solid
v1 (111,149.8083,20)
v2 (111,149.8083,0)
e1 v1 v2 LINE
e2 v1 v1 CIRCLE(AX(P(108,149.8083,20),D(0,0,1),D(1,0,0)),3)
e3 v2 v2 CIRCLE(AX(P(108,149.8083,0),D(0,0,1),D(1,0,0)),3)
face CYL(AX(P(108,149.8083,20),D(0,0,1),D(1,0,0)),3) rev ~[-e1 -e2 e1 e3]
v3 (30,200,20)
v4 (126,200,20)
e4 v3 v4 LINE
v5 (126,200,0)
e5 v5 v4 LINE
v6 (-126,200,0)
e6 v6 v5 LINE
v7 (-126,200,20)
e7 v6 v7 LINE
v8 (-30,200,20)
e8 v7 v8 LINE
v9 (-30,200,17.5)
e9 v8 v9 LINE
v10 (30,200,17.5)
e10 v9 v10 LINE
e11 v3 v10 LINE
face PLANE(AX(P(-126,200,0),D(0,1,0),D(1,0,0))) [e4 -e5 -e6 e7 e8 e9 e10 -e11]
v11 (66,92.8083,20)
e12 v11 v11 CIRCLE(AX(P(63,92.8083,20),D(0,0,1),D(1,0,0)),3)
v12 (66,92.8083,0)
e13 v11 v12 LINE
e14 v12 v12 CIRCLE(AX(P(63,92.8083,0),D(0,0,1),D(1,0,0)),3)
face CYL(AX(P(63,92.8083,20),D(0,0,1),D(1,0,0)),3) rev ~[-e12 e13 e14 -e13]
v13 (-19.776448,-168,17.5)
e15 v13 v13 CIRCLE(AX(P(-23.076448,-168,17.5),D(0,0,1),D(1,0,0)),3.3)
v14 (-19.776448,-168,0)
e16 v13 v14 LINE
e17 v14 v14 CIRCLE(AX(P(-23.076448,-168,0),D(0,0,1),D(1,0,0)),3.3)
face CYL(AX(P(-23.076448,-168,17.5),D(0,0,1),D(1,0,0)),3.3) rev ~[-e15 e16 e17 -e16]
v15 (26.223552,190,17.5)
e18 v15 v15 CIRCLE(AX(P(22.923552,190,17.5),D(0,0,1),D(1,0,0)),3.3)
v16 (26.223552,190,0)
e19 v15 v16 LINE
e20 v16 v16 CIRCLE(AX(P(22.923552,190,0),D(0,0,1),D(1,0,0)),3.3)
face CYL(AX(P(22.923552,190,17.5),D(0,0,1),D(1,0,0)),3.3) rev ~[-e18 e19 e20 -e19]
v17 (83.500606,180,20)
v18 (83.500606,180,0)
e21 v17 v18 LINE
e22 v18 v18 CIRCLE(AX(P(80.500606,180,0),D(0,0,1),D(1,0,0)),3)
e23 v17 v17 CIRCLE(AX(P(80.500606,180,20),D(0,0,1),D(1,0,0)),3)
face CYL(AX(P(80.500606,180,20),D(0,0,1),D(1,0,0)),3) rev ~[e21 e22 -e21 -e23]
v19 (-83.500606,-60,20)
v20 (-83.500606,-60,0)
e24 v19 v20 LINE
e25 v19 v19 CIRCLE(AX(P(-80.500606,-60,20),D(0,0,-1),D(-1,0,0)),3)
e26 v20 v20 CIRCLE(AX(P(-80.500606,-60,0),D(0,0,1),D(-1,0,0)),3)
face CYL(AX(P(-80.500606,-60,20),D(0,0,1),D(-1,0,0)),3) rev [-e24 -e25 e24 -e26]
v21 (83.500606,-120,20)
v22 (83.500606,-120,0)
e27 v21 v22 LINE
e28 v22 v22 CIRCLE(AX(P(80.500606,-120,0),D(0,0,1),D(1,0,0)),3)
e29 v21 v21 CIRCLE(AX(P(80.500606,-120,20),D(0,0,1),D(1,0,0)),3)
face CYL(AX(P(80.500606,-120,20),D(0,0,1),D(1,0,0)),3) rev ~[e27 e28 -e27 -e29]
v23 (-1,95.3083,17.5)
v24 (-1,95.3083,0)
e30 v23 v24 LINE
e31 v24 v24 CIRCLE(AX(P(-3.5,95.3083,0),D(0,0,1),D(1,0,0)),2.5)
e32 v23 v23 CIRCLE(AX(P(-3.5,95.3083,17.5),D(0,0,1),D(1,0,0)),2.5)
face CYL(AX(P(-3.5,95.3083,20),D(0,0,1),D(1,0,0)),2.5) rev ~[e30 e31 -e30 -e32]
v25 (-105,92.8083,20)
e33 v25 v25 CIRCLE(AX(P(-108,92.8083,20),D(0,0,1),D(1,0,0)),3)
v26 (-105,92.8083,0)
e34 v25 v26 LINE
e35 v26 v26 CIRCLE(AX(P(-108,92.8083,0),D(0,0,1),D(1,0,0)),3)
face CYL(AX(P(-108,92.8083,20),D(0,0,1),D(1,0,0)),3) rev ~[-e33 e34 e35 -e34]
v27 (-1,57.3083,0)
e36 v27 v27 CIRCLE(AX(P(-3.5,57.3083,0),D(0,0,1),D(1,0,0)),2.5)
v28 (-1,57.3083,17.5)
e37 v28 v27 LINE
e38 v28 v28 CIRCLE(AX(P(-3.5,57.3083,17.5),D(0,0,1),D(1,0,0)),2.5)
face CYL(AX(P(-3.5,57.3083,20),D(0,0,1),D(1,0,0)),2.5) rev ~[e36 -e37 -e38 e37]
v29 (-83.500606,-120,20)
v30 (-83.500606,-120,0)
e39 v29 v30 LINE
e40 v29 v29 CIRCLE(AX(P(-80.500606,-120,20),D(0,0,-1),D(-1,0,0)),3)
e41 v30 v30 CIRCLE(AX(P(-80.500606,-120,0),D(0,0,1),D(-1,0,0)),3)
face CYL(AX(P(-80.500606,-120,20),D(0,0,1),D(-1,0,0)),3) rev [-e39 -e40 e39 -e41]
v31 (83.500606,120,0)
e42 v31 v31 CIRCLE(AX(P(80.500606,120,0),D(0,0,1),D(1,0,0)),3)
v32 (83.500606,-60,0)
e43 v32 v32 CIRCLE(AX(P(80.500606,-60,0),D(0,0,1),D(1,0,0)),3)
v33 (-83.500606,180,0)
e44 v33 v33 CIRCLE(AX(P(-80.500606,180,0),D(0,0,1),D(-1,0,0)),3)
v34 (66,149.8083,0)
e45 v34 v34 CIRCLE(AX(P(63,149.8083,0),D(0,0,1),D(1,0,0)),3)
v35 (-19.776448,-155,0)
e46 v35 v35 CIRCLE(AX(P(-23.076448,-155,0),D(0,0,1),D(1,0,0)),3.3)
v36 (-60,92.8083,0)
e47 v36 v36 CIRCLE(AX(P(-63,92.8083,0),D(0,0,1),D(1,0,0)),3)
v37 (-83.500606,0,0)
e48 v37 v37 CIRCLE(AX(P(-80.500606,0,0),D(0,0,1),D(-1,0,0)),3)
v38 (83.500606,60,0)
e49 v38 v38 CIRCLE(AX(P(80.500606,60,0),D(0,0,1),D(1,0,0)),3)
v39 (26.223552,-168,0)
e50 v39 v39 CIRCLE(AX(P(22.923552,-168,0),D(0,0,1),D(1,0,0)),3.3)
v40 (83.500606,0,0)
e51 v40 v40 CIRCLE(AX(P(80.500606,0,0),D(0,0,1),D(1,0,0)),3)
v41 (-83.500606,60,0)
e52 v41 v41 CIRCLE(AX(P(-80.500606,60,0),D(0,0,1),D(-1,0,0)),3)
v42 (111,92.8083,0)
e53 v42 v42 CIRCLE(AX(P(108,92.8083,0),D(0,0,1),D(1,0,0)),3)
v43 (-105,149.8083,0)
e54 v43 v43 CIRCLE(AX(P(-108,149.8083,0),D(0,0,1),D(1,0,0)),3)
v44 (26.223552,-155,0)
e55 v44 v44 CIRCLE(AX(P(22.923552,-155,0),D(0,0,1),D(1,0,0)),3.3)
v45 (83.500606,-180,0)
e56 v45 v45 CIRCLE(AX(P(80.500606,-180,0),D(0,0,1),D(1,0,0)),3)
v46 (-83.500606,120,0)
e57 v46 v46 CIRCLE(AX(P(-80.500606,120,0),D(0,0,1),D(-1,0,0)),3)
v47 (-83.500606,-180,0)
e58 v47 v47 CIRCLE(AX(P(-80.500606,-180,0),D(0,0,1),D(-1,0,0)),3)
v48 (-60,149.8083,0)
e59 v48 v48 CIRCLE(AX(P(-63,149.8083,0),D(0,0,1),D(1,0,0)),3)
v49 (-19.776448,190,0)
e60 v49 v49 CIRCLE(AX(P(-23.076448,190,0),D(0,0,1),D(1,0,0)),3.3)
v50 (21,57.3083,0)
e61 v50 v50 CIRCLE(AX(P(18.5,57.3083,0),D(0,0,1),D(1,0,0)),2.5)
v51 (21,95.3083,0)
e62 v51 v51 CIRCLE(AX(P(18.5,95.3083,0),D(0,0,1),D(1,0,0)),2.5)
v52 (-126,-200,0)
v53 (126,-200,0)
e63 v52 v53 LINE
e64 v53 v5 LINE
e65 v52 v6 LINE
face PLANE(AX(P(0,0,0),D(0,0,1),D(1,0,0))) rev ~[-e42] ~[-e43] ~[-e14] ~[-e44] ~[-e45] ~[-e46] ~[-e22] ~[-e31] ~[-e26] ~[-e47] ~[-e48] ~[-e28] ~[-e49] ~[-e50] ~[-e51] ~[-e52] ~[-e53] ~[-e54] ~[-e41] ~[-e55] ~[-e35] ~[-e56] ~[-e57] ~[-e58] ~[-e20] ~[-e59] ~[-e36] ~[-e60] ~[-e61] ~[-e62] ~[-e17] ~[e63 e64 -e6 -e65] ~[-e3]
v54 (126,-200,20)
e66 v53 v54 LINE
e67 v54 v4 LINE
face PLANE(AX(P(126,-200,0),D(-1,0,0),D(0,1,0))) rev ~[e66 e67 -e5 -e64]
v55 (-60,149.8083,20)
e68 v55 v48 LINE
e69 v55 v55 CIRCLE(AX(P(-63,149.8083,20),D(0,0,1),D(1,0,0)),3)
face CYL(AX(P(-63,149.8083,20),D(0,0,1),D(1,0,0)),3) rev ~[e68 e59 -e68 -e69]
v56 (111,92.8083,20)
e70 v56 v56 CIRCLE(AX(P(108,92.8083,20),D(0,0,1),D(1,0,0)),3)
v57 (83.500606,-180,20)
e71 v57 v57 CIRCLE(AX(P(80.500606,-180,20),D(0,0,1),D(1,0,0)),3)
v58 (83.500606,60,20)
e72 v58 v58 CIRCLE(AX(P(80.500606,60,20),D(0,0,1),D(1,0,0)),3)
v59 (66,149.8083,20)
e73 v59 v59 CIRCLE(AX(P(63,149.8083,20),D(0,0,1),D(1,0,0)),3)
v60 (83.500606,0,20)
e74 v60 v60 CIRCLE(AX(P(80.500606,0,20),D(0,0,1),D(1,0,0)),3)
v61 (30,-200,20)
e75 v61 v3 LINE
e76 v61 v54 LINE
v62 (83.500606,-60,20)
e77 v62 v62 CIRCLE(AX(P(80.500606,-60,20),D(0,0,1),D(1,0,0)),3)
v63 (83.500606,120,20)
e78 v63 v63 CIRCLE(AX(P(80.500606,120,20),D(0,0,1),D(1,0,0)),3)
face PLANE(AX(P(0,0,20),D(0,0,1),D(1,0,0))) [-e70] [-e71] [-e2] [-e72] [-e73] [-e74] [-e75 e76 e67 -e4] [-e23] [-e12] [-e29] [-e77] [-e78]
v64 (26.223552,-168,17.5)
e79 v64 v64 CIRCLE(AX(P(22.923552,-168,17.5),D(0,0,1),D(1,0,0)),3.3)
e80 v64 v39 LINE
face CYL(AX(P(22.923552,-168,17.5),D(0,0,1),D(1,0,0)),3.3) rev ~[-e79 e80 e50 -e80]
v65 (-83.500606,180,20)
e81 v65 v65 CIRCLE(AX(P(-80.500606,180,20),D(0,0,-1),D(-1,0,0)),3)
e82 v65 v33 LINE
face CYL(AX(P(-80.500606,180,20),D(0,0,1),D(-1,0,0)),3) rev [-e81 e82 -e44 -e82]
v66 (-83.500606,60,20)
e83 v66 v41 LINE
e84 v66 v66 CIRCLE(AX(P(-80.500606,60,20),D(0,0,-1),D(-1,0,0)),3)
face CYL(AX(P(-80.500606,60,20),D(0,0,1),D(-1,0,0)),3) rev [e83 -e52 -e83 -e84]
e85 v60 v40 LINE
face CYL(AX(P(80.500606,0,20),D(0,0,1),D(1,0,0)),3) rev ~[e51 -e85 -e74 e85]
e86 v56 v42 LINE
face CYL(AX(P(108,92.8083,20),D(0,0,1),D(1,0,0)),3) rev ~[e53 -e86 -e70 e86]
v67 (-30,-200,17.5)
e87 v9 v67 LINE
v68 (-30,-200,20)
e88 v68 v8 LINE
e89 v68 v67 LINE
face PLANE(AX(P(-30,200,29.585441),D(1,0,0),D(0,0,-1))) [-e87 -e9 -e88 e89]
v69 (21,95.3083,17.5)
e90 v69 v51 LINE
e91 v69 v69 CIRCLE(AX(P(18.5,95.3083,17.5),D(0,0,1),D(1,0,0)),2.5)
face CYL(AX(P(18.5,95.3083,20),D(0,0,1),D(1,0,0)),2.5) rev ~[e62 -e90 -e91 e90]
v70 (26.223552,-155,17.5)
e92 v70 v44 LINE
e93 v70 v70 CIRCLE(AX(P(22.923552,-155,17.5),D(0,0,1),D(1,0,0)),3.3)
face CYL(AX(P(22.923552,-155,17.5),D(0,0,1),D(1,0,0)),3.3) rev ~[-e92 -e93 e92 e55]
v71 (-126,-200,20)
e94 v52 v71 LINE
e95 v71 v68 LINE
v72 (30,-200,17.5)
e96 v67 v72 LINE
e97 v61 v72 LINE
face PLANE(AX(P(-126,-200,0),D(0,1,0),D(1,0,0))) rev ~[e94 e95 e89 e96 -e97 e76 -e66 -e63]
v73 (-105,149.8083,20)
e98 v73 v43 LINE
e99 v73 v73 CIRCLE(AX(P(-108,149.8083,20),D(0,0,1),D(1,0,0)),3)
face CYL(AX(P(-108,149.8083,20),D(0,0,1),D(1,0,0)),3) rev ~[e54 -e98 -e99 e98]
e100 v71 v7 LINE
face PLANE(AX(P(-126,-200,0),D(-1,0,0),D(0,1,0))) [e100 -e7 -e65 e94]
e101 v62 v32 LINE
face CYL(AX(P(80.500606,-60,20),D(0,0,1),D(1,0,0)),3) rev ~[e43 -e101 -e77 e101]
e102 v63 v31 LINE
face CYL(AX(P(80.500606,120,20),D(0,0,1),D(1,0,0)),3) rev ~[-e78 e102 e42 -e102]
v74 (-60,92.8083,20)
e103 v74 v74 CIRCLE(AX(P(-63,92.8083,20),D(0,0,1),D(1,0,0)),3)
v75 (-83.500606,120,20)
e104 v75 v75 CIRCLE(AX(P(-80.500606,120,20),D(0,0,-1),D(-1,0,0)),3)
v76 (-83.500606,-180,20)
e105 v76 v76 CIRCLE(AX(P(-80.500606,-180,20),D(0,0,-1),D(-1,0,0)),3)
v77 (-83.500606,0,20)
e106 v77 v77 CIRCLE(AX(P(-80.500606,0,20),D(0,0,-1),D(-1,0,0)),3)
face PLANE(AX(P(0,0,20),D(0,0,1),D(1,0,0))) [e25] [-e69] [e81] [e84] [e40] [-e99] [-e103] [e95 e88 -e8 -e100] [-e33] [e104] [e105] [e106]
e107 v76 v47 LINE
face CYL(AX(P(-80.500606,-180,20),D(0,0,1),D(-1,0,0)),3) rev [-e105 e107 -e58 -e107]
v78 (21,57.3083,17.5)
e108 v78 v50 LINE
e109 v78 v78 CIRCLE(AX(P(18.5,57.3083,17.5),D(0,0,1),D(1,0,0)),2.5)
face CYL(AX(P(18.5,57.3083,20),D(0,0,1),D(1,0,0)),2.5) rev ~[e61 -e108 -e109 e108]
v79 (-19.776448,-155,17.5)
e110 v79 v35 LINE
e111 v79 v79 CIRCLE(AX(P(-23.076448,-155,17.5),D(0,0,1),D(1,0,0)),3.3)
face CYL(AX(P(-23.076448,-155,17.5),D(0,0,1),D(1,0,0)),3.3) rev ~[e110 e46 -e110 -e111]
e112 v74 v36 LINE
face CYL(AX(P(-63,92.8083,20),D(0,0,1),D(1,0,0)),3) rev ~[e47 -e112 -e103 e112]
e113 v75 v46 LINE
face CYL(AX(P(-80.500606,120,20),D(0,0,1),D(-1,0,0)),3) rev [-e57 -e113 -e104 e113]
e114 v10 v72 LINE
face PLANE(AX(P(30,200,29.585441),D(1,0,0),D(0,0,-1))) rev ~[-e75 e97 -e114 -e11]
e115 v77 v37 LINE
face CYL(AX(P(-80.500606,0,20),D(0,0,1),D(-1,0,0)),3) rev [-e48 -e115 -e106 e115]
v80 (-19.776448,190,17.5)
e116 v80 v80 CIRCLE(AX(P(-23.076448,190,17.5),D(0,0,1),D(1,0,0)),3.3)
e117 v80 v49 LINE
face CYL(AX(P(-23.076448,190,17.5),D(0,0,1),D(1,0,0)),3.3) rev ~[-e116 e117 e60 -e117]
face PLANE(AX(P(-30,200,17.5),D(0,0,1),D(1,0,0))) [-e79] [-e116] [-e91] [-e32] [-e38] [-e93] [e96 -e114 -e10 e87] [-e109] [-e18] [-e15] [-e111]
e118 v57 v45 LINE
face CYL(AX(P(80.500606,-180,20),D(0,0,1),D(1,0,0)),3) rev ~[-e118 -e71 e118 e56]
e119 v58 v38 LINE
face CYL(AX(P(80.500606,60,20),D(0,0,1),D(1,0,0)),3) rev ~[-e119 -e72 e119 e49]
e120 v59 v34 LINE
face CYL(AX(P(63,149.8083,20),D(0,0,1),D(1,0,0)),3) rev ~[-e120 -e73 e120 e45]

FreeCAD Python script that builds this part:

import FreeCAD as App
import Part
import Sketcher

doc = App.newDocument("Part")
params = doc.addObject("Spreadsheet::Sheet", "Params")
for row, (alias, value) in enumerate([
    ("sketch1_width", "252 mm"),
    ("sketch1_height", "400 mm"),
    ("pad1_length", "20 mm"),
    ("sketch2_width", "60 mm"),
    ("sketch3_diameter", "6.6 mm"),
    ("sketch4_diameter", "6 mm"),
    ("sketch5_diameter", "6 mm"),
    ("sketch5_diameter2", "5 mm"),
], start=1):
    params.set(f"A{row}", alias)
    params.set(f"B{row}", "=" + value)
    params.setAlias(f"B{row}", alias)

body = doc.addObject("PartDesign::Body", "Body")

# Sketch on XY plane
sketch1 = doc.addObject("Sketcher::SketchObject", "Sketch")
body.addObject(sketch1)
sketch1.AttachmentSupport = (doc.XY_Plane, [""])
sketch1.MapMode = "FlatFace"
sketch1.addGeometry([
    Part.LineSegment(App.Vector(-126, 200, 0), App.Vector(-126, -200, 0)),
    Part.LineSegment(App.Vector(-126, -200, 0), App.Vector(126, -200, 0)),
    Part.LineSegment(App.Vector(126, -200, 0), App.Vector(126, 200, 0)),
    Part.LineSegment(App.Vector(126, 200, 0), App.Vector(-126, 200, 0)),
], False)
sketch1.addConstraint([
    Sketcher.Constraint("Coincident", 0, 2, 1, 1),
    Sketcher.Constraint("Coincident", 1, 2, 2, 1),
    Sketcher.Constraint("Coincident", 2, 2, 3, 1),
    Sketcher.Constraint("Coincident", 3, 2, 0, 1),
    Sketcher.Constraint("Vertical", 0),
    Sketcher.Constraint("Horizontal", 1),
    Sketcher.Constraint("Vertical", 2),
    Sketcher.Constraint("Horizontal", 3),
    Sketcher.Constraint("Symmetric", 0, 2, 2, 2, -1, 1),
    Sketcher.Constraint("DistanceX", 1, 1, 1, 2, 252.0),
    Sketcher.Constraint("DistanceY", 0, 2, 0, 1, 400.0),
])
sketch1.setExpression("Constraints[9]", "Params.sketch1_width")
sketch1.setExpression("Constraints[10]", "Params.sketch1_height")
pad1 = doc.addObject("PartDesign::Pad", "Pad")
body.addObject(pad1)
pad1.Profile = sketch1
pad1.setExpression("Length", "Params.pad1_length")

# Sketch on XZ plane
sketch2 = doc.addObject("Sketcher::SketchObject", "Sketch001")
body.addObject(sketch2)
sketch2.AttachmentSupport = (doc.XZ_Plane, [""])
sketch2.MapMode = "FlatFace"
sketch2.AttachmentOffset = App.Placement(App.Vector(0, 0, -200), App.Rotation())
sketch2.addGeometry([
    Part.LineSegment(App.Vector(-30, 18, 0), App.Vector(-30, 30, 0)),
    Part.LineSegment(App.Vector(-30, 30, 0), App.Vector(30, 30, 0)),
    Part.LineSegment(App.Vector(30, 30, 0), App.Vector(30, 18, 0)),
    Part.LineSegment(App.Vector(30, 18, 0), App.Vector(-30, 18, 0)),
], False)
sketch2.addConstraint([
    Sketcher.Constraint("Coincident", 0, 2, 1, 1),
    Sketcher.Constraint("Coincident", 1, 2, 2, 1),
    Sketcher.Constraint("Coincident", 2, 2, 3, 1),
    Sketcher.Constraint("Coincident", 3, 2, 0, 1),
    Sketcher.Constraint("Vertical", 0),
    Sketcher.Constraint("Horizontal", 1),
    Sketcher.Constraint("Vertical", 2),
    Sketcher.Constraint("Horizontal", 3),
    Sketcher.Constraint("DistanceX", 1, 1, 1, 2, 60.0),
    Sketcher.Constraint("DistanceX", 0, 2, -1, 1, 30.0),
    Sketcher.Constraint("DistanceY", -1, 1, 2, 2, 17.5),
    Sketcher.Constraint("DistanceY", 0, 1, 0, 2, 12.085441),
])
sketch2.setExpression("Constraints[8]", "Params.sketch2_width")
pocket1 = doc.addObject("PartDesign::Pocket", "Pocket")
body.addObject(pocket1)
pocket1.Profile = sketch2
pocket1.Type = "ThroughAll"
pocket1.Reversed = True

# Sketch on XY plane
sketch3 = doc.addObject("Sketcher::SketchObject", "Sketch002")
body.addObject(sketch3)
sketch3.AttachmentSupport = (doc.XY_Plane, [""])
sketch3.MapMode = "FlatFace"
sketch3.AttachmentOffset = App.Placement(App.Vector(0, 0, 17.5), App.Rotation())
sketch3.addGeometry([
    Part.Circle(App.Vector(22.9, 190, 0), App.Vector(0, 0, 1), 3.3),  # 0
    Part.Circle(App.Vector(-23.1, 190, 0), App.Vector(0, 0, 1), 3.3),  # 1
    Part.Circle(App.Vector(22.9, -155, 0), App.Vector(0, 0, 1), 3.3),  # 2
    Part.Circle(App.Vector(-23.1, -155, 0), App.Vector(0, 0, 1), 3.3),  # 3
    Part.Circle(App.Vector(22.9, -168, 0), App.Vector(0, 0, 1), 3.3),  # 4
    Part.Circle(App.Vector(-23.1, -168, 0), App.Vector(0, 0, 1), 3.3),  # 5
], False)
sketch3.addConstraint([
    Sketcher.Constraint("Equal", 0, 1),
    Sketcher.Constraint("Equal", 1, 2),
    Sketcher.Constraint("Equal", 2, 3),
    Sketcher.Constraint("Equal", 3, 4),
    Sketcher.Constraint("Equal", 4, 5),
    Sketcher.Constraint("Horizontal", 0, 3, 1, 3),
    Sketcher.Constraint("Horizontal", 2, 3, 3, 3),
    Sketcher.Constraint("Horizontal", 4, 3, 5, 3),
    Sketcher.Constraint("Vertical", 0, 3, 2, 3),
    Sketcher.Constraint("Vertical", 1, 3, 3, 3),
    Sketcher.Constraint("Vertical", 2, 3, 4, 3),
    Sketcher.Constraint("Vertical", 3, 3, 5, 3),
    Sketcher.Constraint("Diameter", 0, 6.6),
    Sketcher.Constraint("DistanceY", -1, 1, 0, 3, 190.0),
    Sketcher.Constraint("DistanceY", 2, 3, -1, 1, 155.0),
    Sketcher.Constraint("DistanceY", 4, 3, -1, 1, 168.0),
    Sketcher.Constraint("DistanceX", 1, 3, 0, 3, 46.0),
    Sketcher.Constraint("DistanceX", -1, 1, 0, 3, 22.923552),
])
sketch3.setExpression("Constraints[12]", "Params.sketch3_diameter")
pocket2 = doc.addObject("PartDesign::Pocket", "Pocket001")
body.addObject(pocket2)
pocket2.Profile = sketch3
pocket2.Type = "ThroughAll"

# Sketch on XY plane
sketch4 = doc.addObject("Sketcher::SketchObject", "Sketch003")
body.addObject(sketch4)
sketch4.AttachmentSupport = (doc.XY_Plane, [""])
sketch4.MapMode = "FlatFace"
sketch4.AttachmentOffset = App.Placement(App.Vector(0, 0, 20), App.Rotation())
sketch4.addGeometry([
    Part.Circle(App.Vector(80.5, -120, 0), App.Vector(0, 0, 1), 3),  # 0
    Part.Circle(App.Vector(80.5, -180, 0), App.Vector(0, 0, 1), 3),  # 1
    Part.Circle(App.Vector(80.5, 180, 0), App.Vector(0, 0, 1), 3),  # 2
    Part.Circle(App.Vector(80.5, 120, 0), App.Vector(0, 0, 1), 3),  # 3
    Part.Circle(App.Vector(80.5, 60, 0), App.Vector(0, 0, 1), 3),  # 4
    Part.Circle(App.Vector(80.5, 0, 0), App.Vector(0, 0, 1), 3),  # 5
    Part.Circle(App.Vector(80.5, -60, 0), App.Vector(0, 0, 1), 3),  # 6
], False)
sketch4.addConstraint([
    Sketcher.Constraint("Equal", 0, 1),
    Sketcher.Constraint("Equal", 1, 2),
    Sketcher.Constraint("Equal", 2, 3),
    Sketcher.Constraint("Equal", 3, 4),
    Sketcher.Constraint("Equal", 4, 5),
    Sketcher.Constraint("Equal", 5, 6),
    Sketcher.Constraint("Symmetric", 1, 3, 2, 3, -1),
    Sketcher.Constraint("Symmetric", 0, 3, 3, 3, -1),
    Sketcher.Constraint("Symmetric", 4, 3, 6, 3, -1),
    Sketcher.Constraint("PointOnObject", 5, 3, -1),
    Sketcher.Constraint("Vertical", 0, 3, 1, 3),
    Sketcher.Constraint("Vertical", 3, 3, 4, 3),
    Sketcher.Constraint("Vertical", 4, 3, 5, 3),
    Sketcher.Constraint("Diameter", 0, 6.0),
    Sketcher.Constraint("DistanceY", 0, 3, -1, 1, 120.0),
    Sketcher.Constraint("DistanceY", 1, 3, -1, 1, 180.0),
    Sketcher.Constraint("DistanceY", -1, 1, 4, 3, 60.0),
    Sketcher.Constraint("DistanceX", -1, 1, 0, 3, 80.500606),
])
sketch4.setExpression("Constraints[13]", "Params.sketch4_diameter")
pocket3 = doc.addObject("PartDesign::Pocket", "Pocket002")
body.addObject(pocket3)
pocket3.Profile = sketch4
pocket3.Type = "ThroughAll"
doc.recompute()

mirrored = doc.addObject("PartDesign::Mirrored", "Mirrored")
body.addObject(mirrored)
mirrored.Originals = [pocket3]
mirrored.MirrorPlane = (doc.YZ_Plane, [""])
body.Tip = mirrored

# Sketch on XY plane
sketch5 = doc.addObject("Sketcher::SketchObject", "Sketch004")
body.addObject(sketch5)
sketch5.AttachmentSupport = (doc.XY_Plane, [""])
sketch5.MapMode = "FlatFace"
sketch5.AttachmentOffset = App.Placement(App.Vector(0, 0, 20), App.Rotation())
sketch5.addGeometry([
    Part.Circle(App.Vector(108, 92.8, 0), App.Vector(0, 0, 1), 3),  # 0
    Part.Circle(App.Vector(63, 92.8, 0), App.Vector(0, 0, 1), 3),  # 1
    Part.Circle(App.Vector(108, 149.8, 0), App.Vector(0, 0, 1), 3),  # 2
    Part.Circle(App.Vector(63, 149.8, 0), App.Vector(0, 0, 1), 3),  # 3
    Part.Circle(App.Vector(-3.5, 95.3, 0), App.Vector(0, 0, 1), 2.5),  # 4
    Part.Circle(App.Vector(18.5, 95.3, 0), App.Vector(0, 0, 1), 2.5),  # 5
    Part.Circle(App.Vector(-3.5, 57.3, 0), App.Vector(0, 0, 1), 2.5),  # 6
    Part.Circle(App.Vector(18.5, 57.3, 0), App.Vector(0, 0, 1), 2.5),  # 7
    Part.Circle(App.Vector(-63, 92.8, 0), App.Vector(0, 0, 1), 3),  # 8
    Part.Circle(App.Vector(-108, 92.8, 0), App.Vector(0, 0, 1), 3),  # 9
    Part.Circle(App.Vector(-63, 149.8, 0), App.Vector(0, 0, 1), 3),  # 10
    Part.Circle(App.Vector(-108, 149.8, 0), App.Vector(0, 0, 1), 3),  # 11
], False)
sketch5.addConstraint([
    Sketcher.Constraint("Equal", 0, 1),
    Sketcher.Constraint("Equal", 1, 2),
    Sketcher.Constraint("Equal", 2, 3),
    Sketcher.Constraint("Equal", 4, 5),
    Sketcher.Constraint("Equal", 5, 6),
    Sketcher.Constraint("Equal", 6, 7),
    Sketcher.Constraint("Equal", 3, 8),
    Sketcher.Constraint("Equal", 8, 9),
    Sketcher.Constraint("Equal", 9, 10),
    Sketcher.Constraint("Equal", 10, 11),
    Sketcher.Constraint("Symmetric", 1, 3, 8, 3, -2),
    Sketcher.Constraint("Symmetric", 0, 3, 9, 3, -2),
    Sketcher.Constraint("Symmetric", 3, 3, 10, 3, -2),
    Sketcher.Constraint("Symmetric", 2, 3, 11, 3, -2),
    Sketcher.Constraint("Horizontal", 0, 3, 1, 3),
    Sketcher.Constraint("Horizontal", 2, 3, 3, 3),
    Sketcher.Constraint("Horizontal", 4, 3, 5, 3),
    Sketcher.Constraint("Horizontal", 6, 3, 7, 3),
    Sketcher.Constraint("Vertical", 0, 3, 2, 3),
    Sketcher.Constraint("Vertical", 1, 3, 3, 3),
    Sketcher.Constraint("Vertical", 4, 3, 6, 3),
    Sketcher.Constraint("Vertical", 5, 3, 7, 3),
    Sketcher.Constraint("Diameter", 0, 6.0),
    Sketcher.Constraint("Diameter", 4, 5.0),
    Sketcher.Constraint("DistanceX", -1, 1, 0, 3, 108.0),
    Sketcher.Constraint("DistanceX", -1, 1, 1, 3, 63.0),
    Sketcher.Constraint("DistanceY", 0, 3, 2, 3, 57.0),
    Sketcher.Constraint("DistanceX", 4, 3, 5, 3, 22.0),
    Sketcher.Constraint("DistanceY", 6, 3, 4, 3, 38.0),
    Sketcher.Constraint("DistanceX", 4, 3, -1, 1, 3.5),
    Sketcher.Constraint("DistanceY", 1, 3, 4, 3, 2.5),
    Sketcher.Constraint("DistanceY", -1, 1, 0, 3, 92.8083),
])
sketch5.setExpression("Constraints[22]", "Params.sketch5_diameter")
sketch5.setExpression("Constraints[23]", "Params.sketch5_diameter2")
pocket4 = doc.addObject("PartDesign::Pocket", "Pocket003")
body.addObject(pocket4)
pocket4.Profile = sketch5
pocket4.Type = "ThroughAll"

doc.recompute()
